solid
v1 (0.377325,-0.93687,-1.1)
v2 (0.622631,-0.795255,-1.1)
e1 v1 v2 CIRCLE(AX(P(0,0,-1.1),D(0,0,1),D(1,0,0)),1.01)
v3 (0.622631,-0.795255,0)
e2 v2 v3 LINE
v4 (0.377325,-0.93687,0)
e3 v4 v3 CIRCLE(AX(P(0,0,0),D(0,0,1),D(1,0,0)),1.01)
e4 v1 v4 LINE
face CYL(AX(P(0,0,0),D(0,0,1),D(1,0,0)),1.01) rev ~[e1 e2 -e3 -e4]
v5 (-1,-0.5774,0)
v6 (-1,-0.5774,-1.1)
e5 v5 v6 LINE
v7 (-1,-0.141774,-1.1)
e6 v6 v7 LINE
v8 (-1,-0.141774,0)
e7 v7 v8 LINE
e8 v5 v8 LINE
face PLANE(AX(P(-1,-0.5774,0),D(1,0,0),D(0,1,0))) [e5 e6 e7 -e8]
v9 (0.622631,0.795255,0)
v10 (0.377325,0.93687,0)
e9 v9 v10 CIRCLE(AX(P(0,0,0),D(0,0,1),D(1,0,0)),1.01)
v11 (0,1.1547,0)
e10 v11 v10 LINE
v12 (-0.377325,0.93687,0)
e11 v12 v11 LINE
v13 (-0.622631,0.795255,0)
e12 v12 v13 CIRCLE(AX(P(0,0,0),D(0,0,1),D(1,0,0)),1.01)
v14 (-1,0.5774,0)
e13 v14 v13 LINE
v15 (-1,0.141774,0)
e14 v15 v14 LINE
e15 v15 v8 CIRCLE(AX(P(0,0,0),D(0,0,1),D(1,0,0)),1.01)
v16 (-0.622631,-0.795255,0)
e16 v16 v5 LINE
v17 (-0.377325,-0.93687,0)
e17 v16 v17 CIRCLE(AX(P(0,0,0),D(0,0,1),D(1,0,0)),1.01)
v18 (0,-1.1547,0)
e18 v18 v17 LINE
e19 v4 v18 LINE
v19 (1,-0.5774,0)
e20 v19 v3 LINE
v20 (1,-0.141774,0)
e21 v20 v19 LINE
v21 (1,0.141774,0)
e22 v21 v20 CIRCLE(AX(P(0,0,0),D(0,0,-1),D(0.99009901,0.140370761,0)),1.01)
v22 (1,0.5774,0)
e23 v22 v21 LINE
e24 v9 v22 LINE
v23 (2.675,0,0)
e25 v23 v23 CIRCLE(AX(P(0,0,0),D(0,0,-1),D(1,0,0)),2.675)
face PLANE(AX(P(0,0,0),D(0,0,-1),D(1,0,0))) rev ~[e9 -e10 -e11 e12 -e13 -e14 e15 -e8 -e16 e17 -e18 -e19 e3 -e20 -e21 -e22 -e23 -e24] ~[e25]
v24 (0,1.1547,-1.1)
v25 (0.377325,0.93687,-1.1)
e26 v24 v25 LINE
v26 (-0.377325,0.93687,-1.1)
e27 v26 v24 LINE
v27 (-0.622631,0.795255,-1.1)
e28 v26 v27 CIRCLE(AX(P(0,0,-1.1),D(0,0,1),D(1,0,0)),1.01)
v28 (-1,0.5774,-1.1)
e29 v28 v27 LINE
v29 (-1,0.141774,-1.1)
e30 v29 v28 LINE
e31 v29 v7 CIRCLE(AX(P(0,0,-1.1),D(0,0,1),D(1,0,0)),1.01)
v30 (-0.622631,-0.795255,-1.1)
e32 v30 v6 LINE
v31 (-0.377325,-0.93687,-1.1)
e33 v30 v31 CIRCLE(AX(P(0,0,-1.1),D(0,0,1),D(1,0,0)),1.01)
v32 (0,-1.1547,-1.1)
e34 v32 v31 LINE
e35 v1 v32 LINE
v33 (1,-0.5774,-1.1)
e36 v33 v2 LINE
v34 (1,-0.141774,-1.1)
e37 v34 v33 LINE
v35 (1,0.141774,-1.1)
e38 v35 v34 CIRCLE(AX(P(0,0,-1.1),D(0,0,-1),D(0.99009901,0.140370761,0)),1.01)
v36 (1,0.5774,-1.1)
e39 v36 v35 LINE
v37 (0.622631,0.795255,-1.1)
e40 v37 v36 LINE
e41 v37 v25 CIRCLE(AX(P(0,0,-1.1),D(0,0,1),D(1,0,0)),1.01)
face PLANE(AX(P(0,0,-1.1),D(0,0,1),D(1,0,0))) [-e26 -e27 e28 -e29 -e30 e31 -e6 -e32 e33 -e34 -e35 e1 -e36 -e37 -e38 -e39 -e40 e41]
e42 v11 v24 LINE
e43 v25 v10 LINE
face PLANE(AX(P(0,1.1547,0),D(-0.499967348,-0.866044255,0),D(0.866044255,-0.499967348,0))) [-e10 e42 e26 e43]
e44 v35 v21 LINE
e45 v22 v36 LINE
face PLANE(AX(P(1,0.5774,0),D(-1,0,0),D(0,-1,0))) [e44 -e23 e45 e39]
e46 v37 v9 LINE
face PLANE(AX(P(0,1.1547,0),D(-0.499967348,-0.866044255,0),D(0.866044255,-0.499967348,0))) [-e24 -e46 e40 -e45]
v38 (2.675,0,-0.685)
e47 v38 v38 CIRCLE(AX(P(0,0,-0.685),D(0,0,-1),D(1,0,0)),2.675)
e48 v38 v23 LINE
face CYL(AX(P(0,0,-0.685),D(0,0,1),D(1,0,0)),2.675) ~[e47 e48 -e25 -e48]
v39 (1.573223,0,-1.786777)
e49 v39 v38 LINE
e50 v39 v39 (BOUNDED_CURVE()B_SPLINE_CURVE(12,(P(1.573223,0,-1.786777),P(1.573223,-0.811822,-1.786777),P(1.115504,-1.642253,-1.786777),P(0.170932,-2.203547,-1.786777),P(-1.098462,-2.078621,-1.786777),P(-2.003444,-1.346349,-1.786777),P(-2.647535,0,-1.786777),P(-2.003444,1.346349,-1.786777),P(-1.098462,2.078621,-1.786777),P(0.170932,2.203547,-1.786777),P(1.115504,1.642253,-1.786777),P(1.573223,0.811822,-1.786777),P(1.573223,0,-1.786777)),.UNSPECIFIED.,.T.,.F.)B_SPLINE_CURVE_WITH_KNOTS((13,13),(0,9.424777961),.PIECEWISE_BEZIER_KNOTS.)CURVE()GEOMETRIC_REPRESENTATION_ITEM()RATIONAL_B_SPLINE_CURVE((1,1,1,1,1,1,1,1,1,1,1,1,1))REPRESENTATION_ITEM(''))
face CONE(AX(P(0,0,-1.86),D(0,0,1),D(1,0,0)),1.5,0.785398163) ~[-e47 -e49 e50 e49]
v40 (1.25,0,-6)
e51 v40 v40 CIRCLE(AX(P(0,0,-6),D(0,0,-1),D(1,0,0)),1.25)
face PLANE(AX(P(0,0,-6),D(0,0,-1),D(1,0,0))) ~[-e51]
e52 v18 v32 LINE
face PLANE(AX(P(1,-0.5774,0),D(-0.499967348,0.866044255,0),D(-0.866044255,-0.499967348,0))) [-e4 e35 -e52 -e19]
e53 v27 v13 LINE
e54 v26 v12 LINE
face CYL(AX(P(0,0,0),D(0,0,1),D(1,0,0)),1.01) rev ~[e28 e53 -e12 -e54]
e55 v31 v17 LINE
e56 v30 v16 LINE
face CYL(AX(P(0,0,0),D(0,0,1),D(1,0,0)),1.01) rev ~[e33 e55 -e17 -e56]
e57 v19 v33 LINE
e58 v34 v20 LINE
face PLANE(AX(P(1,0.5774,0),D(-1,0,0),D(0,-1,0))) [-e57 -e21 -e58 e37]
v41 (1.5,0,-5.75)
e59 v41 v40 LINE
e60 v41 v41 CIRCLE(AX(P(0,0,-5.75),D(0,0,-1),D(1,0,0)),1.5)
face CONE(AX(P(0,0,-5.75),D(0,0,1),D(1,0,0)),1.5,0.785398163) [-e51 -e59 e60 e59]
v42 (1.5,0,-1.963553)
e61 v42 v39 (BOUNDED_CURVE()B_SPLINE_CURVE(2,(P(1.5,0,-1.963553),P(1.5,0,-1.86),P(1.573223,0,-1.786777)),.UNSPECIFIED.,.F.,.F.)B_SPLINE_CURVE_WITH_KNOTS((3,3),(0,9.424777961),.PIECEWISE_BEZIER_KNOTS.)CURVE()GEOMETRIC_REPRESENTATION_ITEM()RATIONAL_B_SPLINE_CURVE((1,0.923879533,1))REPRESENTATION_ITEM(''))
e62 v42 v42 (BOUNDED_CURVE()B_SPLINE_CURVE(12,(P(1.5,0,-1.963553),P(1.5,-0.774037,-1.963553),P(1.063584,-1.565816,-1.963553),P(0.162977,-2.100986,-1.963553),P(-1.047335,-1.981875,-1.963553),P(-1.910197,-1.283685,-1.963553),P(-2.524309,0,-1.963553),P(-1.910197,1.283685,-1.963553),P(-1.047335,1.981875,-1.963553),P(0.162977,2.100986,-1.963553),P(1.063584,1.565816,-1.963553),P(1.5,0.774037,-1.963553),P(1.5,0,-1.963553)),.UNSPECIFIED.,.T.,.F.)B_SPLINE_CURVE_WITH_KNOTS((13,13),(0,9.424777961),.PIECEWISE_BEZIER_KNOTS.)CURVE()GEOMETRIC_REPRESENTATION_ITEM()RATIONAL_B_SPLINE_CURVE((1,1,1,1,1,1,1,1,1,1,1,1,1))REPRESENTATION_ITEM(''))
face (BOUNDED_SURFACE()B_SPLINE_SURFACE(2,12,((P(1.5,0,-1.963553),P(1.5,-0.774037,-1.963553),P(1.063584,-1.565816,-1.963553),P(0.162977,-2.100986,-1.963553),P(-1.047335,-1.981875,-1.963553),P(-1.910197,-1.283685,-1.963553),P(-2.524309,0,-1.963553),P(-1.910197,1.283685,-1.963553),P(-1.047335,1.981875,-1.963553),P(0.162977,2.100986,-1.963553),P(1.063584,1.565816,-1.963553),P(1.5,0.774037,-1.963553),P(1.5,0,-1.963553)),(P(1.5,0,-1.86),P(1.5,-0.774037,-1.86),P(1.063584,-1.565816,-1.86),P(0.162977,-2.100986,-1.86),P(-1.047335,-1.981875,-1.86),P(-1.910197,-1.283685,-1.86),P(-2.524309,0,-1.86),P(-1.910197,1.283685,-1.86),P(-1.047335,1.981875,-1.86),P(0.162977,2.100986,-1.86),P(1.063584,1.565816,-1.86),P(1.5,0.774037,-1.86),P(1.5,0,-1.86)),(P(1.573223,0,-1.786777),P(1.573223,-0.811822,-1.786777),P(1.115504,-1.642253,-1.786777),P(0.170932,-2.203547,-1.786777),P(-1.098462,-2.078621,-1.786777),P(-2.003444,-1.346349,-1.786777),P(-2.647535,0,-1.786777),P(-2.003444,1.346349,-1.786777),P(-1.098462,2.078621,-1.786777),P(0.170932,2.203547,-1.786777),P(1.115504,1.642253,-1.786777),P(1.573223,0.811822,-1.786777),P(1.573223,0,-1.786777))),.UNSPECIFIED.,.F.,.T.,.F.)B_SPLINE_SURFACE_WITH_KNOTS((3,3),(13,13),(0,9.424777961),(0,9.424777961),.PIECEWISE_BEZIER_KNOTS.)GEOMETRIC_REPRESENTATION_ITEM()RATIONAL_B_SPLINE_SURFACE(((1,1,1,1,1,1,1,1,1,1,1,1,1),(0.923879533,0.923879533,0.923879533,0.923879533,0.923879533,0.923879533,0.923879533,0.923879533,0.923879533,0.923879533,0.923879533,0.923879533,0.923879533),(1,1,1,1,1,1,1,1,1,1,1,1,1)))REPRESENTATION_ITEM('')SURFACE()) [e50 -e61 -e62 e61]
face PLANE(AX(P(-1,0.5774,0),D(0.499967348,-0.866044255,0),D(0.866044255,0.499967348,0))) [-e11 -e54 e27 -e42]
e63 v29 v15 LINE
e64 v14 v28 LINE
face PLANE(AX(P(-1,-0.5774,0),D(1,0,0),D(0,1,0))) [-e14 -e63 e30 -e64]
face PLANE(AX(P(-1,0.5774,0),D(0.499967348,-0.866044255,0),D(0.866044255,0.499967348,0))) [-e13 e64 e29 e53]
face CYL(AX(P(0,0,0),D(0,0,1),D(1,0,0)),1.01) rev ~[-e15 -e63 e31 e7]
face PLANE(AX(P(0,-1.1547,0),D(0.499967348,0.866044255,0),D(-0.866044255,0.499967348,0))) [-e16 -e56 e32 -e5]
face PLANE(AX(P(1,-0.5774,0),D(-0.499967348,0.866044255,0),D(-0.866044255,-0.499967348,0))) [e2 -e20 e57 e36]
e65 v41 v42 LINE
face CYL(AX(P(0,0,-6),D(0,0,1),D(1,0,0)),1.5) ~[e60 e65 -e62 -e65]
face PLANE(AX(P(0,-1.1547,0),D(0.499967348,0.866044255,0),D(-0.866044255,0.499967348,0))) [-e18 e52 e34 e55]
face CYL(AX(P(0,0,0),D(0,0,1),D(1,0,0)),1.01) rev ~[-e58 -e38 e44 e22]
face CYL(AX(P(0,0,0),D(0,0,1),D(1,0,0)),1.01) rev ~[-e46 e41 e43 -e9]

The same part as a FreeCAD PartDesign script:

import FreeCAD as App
import Part
import Sketcher

V = App.Vector
Q = App.Units.Quantity


def edges_at(feature, points):
    """Names of the edges that pass closest to the given points."""
    edges = feature.Shape.Edges
    near = lambda p: min(range(len(edges)), key=lambda i: edges[i].distToShape(Part.Vertex(*p))[0])
    return sorted({f"Edge{near(p) + 1}" for p in points})


def add_polygon(sketch, points):
    """Adds a closed chain of lines whose ends are joined by coincident constraints."""
    first, n = sketch.GeometryCount, len(points)
    for a, b in zip(points, points[1:] + points[:1]):
        sketch.addGeometry(Part.LineSegment(App.Vector(*a, 0), App.Vector(*b, 0)), False)
    for i in range(n):
        sketch.addConstraint(Sketcher.Constraint("Coincident", first + i, 2, first + (i + 1) % n, 1))

doc = App.newDocument("Part")
body = doc.addObject("PartDesign::Body", "Body")

# Sketch on XZ plane
sketch1 = doc.addObject("Sketcher::SketchObject", "Sketch")
body.addObject(sketch1)
sketch1.AttachmentSupport = (doc.XZ_Plane, [""])
sketch1.MapMode = "FlatFace"
add_polygon(sketch1, [(1.5, -6), (0, -6), (0, 0), (2.7, 0), (2.7, -0.7), (1.5, -1.9)])  # lines 0-5
sketch1.addConstraint(Sketcher.Constraint("Horizontal", 0))
sketch1.addConstraint(Sketcher.Constraint("Vertical", 1))
sketch1.addConstraint(Sketcher.Constraint("Horizontal", 2))
sketch1.addConstraint(Sketcher.Constraint("Vertical", 3))
sketch1.addConstraint(Sketcher.Constraint("Vertical", 5))
sketch1.addConstraint(Sketcher.Constraint("Coincident", 1, 2, -1, 1))
sketch1.addConstraint(Sketcher.Constraint("DistanceY", 1, 1, 1, 2, 6.0))
sketch1.addConstraint(Sketcher.Constraint("DistanceX", 0, 2, 0, 1, 1.5))
sketch1.addConstraint(Sketcher.Constraint("DistanceX", 2, 1, 2, 2, 2.675))
sketch1.addConstraint(Sketcher.Constraint("DistanceY", 4, 2, -1, 1, 1.86))
sketch1.addConstraint(Sketcher.Constraint("Angle", 4, Q("-135 deg")))
revolution = doc.addObject("PartDesign::Revolution", "Revolution")
body.addObject(revolution)
revolution.Profile = sketch1
revolution.ReferenceAxis = (sketch1, ["V_Axis"])
revolution.Angle = 360
doc.recompute()

fillet = doc.addObject("PartDesign::Fillet", "Fillet")
body.addObject(fillet)
fillet.Base = (revolution, edges_at(revolution, [(-1.5, 0, -1.86)]))
fillet.Radius = 0.25
doc.recompute()

chamfer = doc.addObject("PartDesign::Chamfer", "Chamfer")
body.addObject(chamfer)
chamfer.Base = (fillet, edges_at(fillet, [(-1.5, 0, -6)]))
chamfer.Size = 0.25

# Sketch on XY plane
sketch2 = doc.addObject("Sketcher::SketchObject", "Sketch001")
body.addObject(sketch2)
sketch2.AttachmentSupport = (doc.XY_Plane, [""])
sketch2.MapMode = "FlatFace"
add_polygon(sketch2, [(-1, 0.6), (-1, -0.6), (0, -1.2), (1, -0.6), (1, 0.6), (0, 1.2)])  # lines 0-5
sketch2.addConstraint(Sketcher.Constraint("Vertical", 0))
sketch2.addConstraint(Sketcher.Constraint("Vertical", 3))
sketch2.addConstraint(Sketcher.Constraint("Symmetric", 0, 2, 3, 2, -1, 1))
sketch2.addConstraint(Sketcher.Constraint("Symmetric", 1, 2, 4, 2, -1, 1))
sketch2.addConstraint(Sketcher.Constraint("PointOnObject", 1, 2, -2))
sketch2.addConstraint(Sketcher.Constraint("Parallel", 2, 5))
sketch2.addConstraint(Sketcher.Constraint("Horizontal", 0, 2, 2, 2))
sketch2.addConstraint(Sketcher.Constraint("DistanceX", 0, 2, 2, 2, 2.0))
sketch2.addConstraint(Sketcher.Constraint("DistanceY", 0, 2, 0, 1, 1.1548))
sketch2.addConstraint(Sketcher.Constraint("DistanceY", 1, 2, 3, 2, 1.732))
pocket1 = doc.addObject("PartDesign::Pocket", "Pocket")
body.addObject(pocket1)
pocket1.Profile = sketch2
pocket1.Length = 1.1

# Sketch on XY plane
sketch3 = doc.addObject("Sketcher::SketchObject", "Sketch002")
body.addObject(sketch3)
sketch3.AttachmentSupport = (doc.XY_Plane, [""])
sketch3.MapMode = "FlatFace"
sketch3.addGeometry(Part.Circle(V(0, 0, 0), V(0, 0, 1), 1), False)
sketch3.addConstraint(Sketcher.Constraint("Coincident", 0, 3, -1, 1))
sketch3.addConstraint(Sketcher.Constraint("Diameter", 0, 2.02))
pocket2 = doc.addObject("PartDesign::Pocket", "Pocket001")
body.addObject(pocket2)
pocket2.Profile = sketch3
pocket2.Length = 1.1

doc.recompute()
